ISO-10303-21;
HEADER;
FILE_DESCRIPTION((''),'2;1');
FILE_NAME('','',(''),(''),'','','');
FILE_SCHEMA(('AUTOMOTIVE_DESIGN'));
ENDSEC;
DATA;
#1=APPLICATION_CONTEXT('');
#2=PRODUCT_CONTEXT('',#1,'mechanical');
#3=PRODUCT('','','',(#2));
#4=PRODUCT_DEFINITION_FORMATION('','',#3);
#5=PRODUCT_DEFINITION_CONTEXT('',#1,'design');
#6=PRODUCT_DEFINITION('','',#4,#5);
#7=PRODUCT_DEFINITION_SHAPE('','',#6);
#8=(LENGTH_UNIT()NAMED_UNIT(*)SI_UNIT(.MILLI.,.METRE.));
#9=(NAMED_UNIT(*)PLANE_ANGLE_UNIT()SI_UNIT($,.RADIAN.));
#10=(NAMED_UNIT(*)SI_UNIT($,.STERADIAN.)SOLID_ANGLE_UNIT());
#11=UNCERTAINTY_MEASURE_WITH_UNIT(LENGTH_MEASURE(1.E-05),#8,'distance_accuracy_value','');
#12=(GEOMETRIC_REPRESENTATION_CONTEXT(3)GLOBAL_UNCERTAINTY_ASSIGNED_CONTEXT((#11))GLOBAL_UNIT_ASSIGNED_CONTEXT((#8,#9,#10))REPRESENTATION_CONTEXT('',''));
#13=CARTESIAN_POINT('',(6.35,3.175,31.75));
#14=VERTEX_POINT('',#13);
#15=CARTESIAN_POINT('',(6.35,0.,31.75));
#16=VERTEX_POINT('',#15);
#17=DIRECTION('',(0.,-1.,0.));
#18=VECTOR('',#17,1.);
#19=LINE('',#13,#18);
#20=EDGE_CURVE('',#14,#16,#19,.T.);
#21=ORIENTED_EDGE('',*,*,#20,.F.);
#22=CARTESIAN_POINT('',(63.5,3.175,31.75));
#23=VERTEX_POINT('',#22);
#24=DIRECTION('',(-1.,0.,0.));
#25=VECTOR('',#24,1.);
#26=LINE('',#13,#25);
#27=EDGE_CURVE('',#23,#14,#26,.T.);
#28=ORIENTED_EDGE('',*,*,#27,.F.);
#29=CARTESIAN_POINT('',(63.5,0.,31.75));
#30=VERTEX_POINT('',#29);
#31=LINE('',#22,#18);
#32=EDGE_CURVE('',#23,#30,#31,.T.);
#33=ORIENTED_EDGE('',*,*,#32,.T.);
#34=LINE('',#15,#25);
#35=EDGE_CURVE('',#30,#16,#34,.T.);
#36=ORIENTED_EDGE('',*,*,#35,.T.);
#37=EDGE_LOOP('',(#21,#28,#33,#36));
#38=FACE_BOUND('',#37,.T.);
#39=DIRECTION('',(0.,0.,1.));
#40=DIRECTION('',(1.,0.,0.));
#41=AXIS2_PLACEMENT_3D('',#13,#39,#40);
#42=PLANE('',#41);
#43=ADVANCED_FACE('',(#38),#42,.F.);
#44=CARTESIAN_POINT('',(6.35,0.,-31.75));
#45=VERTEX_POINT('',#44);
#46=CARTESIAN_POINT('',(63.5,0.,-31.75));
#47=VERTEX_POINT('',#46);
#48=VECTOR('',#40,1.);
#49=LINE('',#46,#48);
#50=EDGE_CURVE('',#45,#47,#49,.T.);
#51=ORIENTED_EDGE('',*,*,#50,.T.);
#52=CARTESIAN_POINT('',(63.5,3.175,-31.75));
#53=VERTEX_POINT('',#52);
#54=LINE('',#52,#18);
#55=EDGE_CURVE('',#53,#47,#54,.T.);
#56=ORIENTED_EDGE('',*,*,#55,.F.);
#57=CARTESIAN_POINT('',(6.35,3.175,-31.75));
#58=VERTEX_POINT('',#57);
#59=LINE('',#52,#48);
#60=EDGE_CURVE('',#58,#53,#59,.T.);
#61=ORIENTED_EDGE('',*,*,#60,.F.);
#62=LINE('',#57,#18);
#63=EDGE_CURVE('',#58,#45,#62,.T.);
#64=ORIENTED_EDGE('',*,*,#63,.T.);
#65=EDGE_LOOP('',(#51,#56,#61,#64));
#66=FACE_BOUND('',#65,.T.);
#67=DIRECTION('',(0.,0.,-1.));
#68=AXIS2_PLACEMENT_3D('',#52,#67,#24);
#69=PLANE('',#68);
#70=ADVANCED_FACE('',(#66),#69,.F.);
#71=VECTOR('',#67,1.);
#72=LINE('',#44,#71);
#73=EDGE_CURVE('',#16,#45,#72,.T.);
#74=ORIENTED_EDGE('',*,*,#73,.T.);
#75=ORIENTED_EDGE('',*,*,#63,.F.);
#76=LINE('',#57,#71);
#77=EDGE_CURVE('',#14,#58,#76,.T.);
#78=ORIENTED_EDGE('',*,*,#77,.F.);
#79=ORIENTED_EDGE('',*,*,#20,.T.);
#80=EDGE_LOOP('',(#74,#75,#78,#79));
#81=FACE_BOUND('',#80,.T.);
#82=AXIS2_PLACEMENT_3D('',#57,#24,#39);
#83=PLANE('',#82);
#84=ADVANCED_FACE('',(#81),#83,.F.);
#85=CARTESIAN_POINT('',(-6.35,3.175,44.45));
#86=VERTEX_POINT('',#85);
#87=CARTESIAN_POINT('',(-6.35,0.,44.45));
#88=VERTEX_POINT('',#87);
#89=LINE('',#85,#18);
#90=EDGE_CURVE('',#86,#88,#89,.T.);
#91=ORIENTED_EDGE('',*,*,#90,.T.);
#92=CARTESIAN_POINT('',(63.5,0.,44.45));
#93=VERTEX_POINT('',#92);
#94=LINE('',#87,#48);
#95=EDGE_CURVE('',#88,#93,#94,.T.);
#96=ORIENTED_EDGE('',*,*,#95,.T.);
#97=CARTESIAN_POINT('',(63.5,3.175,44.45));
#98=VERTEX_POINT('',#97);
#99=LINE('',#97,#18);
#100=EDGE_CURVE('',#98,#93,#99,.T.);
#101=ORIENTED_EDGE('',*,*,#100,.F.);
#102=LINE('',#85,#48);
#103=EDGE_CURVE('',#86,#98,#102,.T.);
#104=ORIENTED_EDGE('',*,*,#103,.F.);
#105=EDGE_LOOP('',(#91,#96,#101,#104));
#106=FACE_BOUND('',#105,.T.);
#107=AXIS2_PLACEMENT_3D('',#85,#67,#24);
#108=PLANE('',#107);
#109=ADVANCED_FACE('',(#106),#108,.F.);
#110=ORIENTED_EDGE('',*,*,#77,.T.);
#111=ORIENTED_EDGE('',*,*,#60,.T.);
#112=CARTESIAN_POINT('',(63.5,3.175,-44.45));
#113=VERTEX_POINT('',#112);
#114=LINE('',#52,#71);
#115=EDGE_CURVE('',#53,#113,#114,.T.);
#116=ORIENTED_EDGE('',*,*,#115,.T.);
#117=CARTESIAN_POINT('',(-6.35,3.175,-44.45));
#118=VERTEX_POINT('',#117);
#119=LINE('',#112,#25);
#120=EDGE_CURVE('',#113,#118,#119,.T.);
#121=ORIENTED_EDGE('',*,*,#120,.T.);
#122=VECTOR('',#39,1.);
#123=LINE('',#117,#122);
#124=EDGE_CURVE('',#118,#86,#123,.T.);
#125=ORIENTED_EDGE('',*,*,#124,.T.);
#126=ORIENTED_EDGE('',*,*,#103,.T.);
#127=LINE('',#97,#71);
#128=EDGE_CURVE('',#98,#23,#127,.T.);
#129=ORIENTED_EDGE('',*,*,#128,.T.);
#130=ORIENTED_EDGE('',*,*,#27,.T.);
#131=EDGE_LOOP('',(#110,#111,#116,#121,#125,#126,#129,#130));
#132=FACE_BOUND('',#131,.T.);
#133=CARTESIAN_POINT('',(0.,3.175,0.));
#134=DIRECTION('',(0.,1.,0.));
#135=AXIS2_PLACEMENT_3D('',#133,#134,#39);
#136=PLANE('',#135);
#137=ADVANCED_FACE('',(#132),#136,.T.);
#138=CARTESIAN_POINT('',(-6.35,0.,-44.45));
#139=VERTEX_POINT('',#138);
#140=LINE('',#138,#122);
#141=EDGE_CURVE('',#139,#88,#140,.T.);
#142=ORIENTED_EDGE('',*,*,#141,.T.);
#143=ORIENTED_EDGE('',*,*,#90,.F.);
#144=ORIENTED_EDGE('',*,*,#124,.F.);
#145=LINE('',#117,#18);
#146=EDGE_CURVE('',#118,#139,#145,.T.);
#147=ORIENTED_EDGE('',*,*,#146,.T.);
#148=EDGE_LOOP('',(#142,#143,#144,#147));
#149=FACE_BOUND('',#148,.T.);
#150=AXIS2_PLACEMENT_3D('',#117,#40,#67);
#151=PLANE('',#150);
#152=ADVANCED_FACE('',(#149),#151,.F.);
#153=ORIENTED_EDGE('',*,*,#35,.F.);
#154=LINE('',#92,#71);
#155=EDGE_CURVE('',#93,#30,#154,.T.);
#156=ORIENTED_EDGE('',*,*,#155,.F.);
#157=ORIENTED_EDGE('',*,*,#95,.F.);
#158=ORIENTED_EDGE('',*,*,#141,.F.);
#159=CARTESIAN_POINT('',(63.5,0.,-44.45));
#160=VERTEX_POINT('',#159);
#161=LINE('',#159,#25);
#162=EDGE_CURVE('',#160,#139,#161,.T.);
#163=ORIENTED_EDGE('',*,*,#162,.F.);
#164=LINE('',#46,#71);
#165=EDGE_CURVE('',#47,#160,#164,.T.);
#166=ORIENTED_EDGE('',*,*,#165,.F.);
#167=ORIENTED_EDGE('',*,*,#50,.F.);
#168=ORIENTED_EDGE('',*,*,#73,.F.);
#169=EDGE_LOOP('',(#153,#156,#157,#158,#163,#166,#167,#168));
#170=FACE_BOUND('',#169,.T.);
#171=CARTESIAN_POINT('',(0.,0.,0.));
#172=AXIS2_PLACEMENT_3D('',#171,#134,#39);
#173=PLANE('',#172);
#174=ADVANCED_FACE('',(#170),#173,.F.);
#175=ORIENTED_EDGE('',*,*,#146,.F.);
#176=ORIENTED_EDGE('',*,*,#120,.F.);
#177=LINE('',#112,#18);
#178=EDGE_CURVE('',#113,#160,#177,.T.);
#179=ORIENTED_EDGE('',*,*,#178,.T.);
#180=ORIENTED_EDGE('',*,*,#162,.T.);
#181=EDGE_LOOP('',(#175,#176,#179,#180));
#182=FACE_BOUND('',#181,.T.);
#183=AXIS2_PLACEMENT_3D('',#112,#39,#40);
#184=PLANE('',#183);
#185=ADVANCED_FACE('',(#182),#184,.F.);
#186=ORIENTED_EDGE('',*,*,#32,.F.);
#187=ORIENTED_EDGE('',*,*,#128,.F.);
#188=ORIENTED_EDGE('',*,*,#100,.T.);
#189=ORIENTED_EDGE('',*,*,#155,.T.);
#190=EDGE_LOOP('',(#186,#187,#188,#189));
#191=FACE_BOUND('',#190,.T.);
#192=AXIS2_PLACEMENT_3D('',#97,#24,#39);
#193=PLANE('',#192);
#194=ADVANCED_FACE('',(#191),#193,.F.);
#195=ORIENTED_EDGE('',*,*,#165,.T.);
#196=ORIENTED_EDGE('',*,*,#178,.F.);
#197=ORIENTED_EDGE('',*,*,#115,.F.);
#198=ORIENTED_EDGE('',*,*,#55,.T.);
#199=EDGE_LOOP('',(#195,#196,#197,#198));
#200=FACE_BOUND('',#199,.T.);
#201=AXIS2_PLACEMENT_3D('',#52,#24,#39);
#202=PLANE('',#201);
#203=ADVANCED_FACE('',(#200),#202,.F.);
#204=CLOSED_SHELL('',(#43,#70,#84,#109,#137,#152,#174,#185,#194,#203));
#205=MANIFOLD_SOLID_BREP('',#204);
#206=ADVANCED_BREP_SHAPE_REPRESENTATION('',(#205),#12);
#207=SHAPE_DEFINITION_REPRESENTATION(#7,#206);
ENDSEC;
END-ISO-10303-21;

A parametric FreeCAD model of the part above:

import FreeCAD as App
import Part
import Sketcher

V = App.Vector
Q = App.Units.Quantity


def add_polygon(sketch, points):
    """Adds a closed chain of lines whose ends are joined by coincident constraints."""
    first, n = sketch.GeometryCount, len(points)
    for a, b in zip(points, points[1:] + points[:1]):
        sketch.addGeometry(Part.LineSegment(App.Vector(*a, 0), App.Vector(*b, 0)), False)
    for i in range(n):
        sketch.addConstraint(Sketcher.Constraint("Coincident", first + i, 2, first + (i + 1) % n, 1))

doc = App.newDocument("Part")
body = doc.addObject("PartDesign::Body", "Body")

# Sketch on XZ plane
sketch1 = body.newObject("Sketcher::SketchObject", "Sketch")
sketch1.AttachmentSupport = (doc.getObject("XZ_Plane"), [""])
sketch1.MapMode = "FlatFace"
add_polygon(sketch1, [(63.5, -31.75), (63.5, -44.45), (-6.35, -44.45), (-6.35, 44.45), (63.5, 44.45), (63.5, 31.75), (6.35, 31.75), (6.35, -31.75)])  # lines 0-7
sketch1.addConstraint([
    Sketcher.Constraint("Vertical", 0),
    Sketcher.Constraint("Horizontal", 1),
    Sketcher.Constraint("Vertical", 2),
    Sketcher.Constraint("Horizontal", 3),
    Sketcher.Constraint("Vertical", 4),
    Sketcher.Constraint("Horizontal", 5),
    Sketcher.Constraint("Vertical", 6),
    Sketcher.Constraint("Horizontal", 7),
    Sketcher.Constraint("Symmetric", 0, 2, 3, 2, -1),
    Sketcher.Constraint("Equal", 0, 4),
    Sketcher.Constraint("DistanceY", 0, 2, 0, 1, Q("0.5 in")),
    Sketcher.Constraint("DistanceY", 2, 1, 2, 2, Q("3.5 in")),
    Sketcher.Constraint("DistanceX", 1, 2, 1, 1, Q("2.75 in")),
    Sketcher.Constraint("DistanceX", 5, 2, 5, 1, Q("2.25 in")),
    Sketcher.Constraint("DistanceX", -1, 1, 0, 2, Q("2.5 in")),
])
pad1 = body.newObject("PartDesign::Pad", "Pad")
pad1.Profile = sketch1
pad1.Length = Q("0.125 in")
pad1.Reversed = True

doc.recompute()
